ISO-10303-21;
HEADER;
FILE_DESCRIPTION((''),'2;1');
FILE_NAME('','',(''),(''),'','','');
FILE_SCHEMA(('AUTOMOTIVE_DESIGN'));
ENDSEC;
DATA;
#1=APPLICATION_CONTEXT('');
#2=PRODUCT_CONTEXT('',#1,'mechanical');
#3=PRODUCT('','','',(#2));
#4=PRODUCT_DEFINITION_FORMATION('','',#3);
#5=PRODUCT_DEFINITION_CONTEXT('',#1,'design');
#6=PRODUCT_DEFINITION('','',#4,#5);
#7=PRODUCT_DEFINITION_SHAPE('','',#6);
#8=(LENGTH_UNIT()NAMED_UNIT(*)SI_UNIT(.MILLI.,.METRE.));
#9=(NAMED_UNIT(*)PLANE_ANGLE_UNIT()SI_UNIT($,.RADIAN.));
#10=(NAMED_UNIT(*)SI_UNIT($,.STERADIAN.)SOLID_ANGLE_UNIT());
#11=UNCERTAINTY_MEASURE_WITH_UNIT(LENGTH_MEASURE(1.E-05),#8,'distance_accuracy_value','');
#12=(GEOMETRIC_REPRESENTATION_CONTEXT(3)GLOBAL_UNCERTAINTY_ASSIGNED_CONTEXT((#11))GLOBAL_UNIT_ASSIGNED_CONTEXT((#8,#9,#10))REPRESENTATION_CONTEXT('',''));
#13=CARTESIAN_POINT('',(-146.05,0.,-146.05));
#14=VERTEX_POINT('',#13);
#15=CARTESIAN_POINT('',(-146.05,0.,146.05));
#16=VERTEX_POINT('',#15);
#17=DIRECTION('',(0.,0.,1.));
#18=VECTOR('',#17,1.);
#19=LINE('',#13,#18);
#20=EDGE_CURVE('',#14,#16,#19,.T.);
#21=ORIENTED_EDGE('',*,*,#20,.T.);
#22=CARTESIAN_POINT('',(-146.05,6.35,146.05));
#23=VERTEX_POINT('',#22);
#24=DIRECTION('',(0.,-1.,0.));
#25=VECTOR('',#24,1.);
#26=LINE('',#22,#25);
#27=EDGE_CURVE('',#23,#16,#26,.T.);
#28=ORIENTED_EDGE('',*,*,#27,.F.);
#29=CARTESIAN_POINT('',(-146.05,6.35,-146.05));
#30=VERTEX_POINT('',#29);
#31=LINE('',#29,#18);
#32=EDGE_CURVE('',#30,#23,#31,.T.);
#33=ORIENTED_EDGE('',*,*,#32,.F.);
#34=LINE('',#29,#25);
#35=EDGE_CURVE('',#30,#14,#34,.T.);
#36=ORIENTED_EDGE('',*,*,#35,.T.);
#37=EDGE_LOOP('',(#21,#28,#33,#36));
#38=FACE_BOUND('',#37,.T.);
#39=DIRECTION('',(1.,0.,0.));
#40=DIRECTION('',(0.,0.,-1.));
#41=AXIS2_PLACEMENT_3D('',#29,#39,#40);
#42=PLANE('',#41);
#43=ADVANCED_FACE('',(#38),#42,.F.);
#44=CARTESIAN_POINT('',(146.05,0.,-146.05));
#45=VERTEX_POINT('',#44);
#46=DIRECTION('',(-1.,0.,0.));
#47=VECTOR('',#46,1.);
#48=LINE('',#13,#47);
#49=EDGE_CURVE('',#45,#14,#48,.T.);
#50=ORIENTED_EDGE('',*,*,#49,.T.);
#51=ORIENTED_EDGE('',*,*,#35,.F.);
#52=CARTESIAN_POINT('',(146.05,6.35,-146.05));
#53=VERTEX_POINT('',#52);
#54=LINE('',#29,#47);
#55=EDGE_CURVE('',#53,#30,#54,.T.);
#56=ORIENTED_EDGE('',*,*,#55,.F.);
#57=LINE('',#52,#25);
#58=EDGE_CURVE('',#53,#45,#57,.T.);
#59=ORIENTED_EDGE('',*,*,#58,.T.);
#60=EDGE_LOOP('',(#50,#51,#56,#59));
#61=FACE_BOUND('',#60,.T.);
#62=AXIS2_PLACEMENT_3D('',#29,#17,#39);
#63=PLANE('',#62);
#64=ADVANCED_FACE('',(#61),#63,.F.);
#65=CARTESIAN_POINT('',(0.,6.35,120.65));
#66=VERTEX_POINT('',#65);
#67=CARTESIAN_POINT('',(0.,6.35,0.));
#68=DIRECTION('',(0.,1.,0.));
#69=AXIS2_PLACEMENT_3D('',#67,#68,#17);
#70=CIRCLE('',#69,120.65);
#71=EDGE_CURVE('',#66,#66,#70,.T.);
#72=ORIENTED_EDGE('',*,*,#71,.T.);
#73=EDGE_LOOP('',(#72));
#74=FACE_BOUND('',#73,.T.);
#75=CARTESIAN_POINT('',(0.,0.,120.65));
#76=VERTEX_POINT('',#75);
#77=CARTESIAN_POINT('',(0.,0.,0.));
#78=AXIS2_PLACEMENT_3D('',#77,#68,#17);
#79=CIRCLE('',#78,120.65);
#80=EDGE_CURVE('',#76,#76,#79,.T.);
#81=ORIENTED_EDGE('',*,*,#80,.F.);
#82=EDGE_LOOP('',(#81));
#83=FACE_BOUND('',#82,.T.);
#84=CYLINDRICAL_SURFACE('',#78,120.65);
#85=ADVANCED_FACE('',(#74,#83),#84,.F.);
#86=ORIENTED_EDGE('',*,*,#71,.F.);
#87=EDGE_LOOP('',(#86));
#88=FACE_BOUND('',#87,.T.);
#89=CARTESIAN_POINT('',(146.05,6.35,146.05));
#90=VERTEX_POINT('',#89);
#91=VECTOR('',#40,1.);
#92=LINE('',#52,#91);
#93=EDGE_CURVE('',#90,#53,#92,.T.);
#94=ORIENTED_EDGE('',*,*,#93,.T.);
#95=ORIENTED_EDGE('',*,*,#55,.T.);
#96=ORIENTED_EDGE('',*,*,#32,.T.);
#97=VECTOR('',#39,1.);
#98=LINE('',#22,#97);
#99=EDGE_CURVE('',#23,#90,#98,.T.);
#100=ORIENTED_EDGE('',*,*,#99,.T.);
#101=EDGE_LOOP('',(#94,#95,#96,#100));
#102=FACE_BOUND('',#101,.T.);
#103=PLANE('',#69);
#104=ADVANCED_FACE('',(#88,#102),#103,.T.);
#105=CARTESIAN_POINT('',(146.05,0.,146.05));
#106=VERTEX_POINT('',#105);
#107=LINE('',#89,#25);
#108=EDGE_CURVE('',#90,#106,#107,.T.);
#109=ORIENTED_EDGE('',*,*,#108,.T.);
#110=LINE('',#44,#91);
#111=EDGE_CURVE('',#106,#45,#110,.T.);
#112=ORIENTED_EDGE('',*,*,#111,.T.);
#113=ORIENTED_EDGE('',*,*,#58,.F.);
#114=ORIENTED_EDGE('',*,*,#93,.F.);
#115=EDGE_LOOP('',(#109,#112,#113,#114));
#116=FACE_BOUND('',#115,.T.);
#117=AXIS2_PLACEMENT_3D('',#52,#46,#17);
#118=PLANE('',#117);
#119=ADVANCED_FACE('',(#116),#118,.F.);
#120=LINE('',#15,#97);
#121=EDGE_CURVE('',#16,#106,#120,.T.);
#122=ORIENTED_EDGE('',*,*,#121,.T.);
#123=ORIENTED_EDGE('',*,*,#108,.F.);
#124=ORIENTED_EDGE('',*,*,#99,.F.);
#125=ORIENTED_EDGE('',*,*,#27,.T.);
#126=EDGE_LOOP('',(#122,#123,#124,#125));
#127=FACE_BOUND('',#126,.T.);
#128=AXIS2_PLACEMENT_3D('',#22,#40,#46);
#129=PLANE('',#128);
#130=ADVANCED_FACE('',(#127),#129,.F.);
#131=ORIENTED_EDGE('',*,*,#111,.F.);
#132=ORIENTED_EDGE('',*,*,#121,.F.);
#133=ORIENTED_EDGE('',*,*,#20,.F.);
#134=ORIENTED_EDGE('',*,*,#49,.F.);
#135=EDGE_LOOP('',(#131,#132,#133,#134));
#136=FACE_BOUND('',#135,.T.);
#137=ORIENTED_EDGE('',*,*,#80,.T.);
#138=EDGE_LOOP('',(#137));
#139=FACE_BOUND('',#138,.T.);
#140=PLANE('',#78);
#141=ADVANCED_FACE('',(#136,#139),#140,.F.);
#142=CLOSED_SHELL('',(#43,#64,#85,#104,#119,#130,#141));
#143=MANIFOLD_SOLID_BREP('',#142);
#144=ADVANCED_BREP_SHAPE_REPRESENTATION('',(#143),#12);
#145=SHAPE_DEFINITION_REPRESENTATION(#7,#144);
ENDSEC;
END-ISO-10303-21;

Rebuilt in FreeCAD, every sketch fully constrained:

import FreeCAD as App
import Part
import Sketcher
from FreeCAD import Vector
Q = App.Units.Quantity


def add_polygon(sketch, points):
    """Adds a closed chain of lines whose ends are joined by coincident constraints."""
    first, n = sketch.GeometryCount, len(points)
    for a, b in zip(points, points[1:] + points[:1]):
        sketch.addGeometry(Part.LineSegment(App.Vector(*a, 0), App.Vector(*b, 0)), False)
    for i in range(n):
        sketch.addConstraint(Sketcher.Constraint("Coincident", first + i, 2, first + (i + 1) % n, 1))

doc = App.newDocument("Part")
body = doc.addObject("PartDesign::Body", "Body")

# Sketch on XZ plane
sketch1 = body.newObject("Sketcher::SketchObject", "Sketch")
sketch1.AttachmentSupport = (doc.getObject("XZ_Plane"), [""])
sketch1.MapMode = "FlatFace"
add_polygon(sketch1, [(-146, -146), (-146, 146), (146, 146), (146, -146)])  # lines 0-3
sketch1.addConstraint(Sketcher.Constraint("Vertical", 0))
sketch1.addConstraint(Sketcher.Constraint("Horizontal", 1))
sketch1.addConstraint(Sketcher.Constraint("Vertical", 2))
sketch1.addConstraint(Sketcher.Constraint("Horizontal", 3))
sketch1.addConstraint(Sketcher.Constraint("Symmetric", 0, 2, 2, 2, -1, 1))
sketch1.addConstraint(Sketcher.Constraint("Equal", 3, 0))
sketch1.addConstraint(Sketcher.Constraint("DistanceX", 1, 1, 1, 2, Q("11.5 in")))
pad1 = body.newObject("PartDesign::Pad", "Pad")
pad1.Profile = sketch1
pad1.Length = Q("0.25 in")
pad1.Reversed = True

# Sketch on XZ plane
sketch2 = body.newObject("Sketcher::SketchObject", "Sketch001")
sketch2.AttachmentSupport = (doc.getObject("XZ_Plane"), [""])
sketch2.MapMode = "FlatFace"
sketch2.AttachmentOffset = App.Placement(Vector(0, 0, -0.25 * 25.4), App.Rotation())
sketch2.addGeometry(Part.Circle(Vector(0, 0, 0), Vector(0, 0, 1), 121), False)
sketch2.addConstraint(Sketcher.Constraint("Coincident", 0, 3, -1, 1))
sketch2.addConstraint(Sketcher.Constraint("Diameter", 0, Q("9.5 in")))
pocket1 = body.newObject("PartDesign::Pocket", "Pocket")
pocket1.Profile = sketch2
pocket1.Length = Q("0.25 in")
pocket1.Reversed = True

doc.recompute()
